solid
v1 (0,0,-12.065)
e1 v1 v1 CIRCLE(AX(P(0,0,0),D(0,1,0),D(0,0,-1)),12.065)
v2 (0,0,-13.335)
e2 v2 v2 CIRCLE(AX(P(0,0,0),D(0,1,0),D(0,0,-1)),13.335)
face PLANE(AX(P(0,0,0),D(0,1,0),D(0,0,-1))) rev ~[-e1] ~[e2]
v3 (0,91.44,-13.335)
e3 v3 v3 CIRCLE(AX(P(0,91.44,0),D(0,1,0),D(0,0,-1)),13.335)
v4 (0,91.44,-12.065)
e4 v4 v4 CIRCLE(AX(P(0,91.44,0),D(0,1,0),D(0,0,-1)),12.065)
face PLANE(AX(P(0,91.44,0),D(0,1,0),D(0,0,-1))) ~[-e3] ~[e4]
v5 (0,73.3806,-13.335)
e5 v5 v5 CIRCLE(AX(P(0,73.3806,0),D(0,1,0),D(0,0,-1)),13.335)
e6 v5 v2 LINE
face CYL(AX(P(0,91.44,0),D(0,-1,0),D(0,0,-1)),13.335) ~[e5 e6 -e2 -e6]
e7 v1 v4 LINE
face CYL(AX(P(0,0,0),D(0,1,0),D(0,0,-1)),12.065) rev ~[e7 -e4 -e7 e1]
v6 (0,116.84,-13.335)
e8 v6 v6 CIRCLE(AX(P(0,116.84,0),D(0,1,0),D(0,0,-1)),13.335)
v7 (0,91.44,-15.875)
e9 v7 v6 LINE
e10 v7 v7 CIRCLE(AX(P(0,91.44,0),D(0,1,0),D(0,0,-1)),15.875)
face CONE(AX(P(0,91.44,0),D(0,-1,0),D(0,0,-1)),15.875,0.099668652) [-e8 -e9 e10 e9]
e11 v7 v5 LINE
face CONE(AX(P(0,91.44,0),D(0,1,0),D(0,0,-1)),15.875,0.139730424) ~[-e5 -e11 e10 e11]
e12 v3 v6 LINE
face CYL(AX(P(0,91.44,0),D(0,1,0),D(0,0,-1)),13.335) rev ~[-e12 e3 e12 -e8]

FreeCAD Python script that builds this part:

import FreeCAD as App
import Part
import Sketcher

V = App.Vector
Q = App.Units.Quantity


def add_polygon(sketch, points):
    """Adds a closed chain of lines whose ends are joined by coincident constraints."""
    first, n = sketch.GeometryCount, len(points)
    for a, b in zip(points, points[1:] + points[:1]):
        sketch.addGeometry(Part.LineSegment(App.Vector(*a, 0), App.Vector(*b, 0)), False)
    for i in range(n):
        sketch.addConstraint(Sketcher.Constraint("Coincident", first + i, 2, first + (i + 1) % n, 1))

doc = App.newDocument("Part")
body = doc.addObject("PartDesign::Body", "Body")

sketch1 = doc.addObject("Sketcher::SketchObject", "Sketch")
body.addObject(sketch1)
sketch1.AttachmentSupport = (doc.YZ_Plane, [""])
sketch1.MapMode = "FlatFace"
add_polygon(sketch1, [(91.4, -12.1), (0, -12.1), (0, -13.3), (73.4, -13.3), (91.4, -15.9), (116.8, -13.3), (91.4, -13.3)])
sketch1.addConstraint(Sketcher.Constraint("Horizontal", 0))
sketch1.addConstraint(Sketcher.Constraint("Vertical", 1))
sketch1.addConstraint(Sketcher.Constraint("Horizontal", 2))
sketch1.addConstraint(Sketcher.Constraint("Horizontal", 5))
sketch1.addConstraint(Sketcher.Constraint("Vertical", 6))
sketch1.addConstraint(Sketcher.Constraint("PointOnObject", 0, 2, -2))
sketch1.addConstraint(Sketcher.Constraint("Horizontal", 2, 2, 4, 2))
sketch1.addConstraint(Sketcher.Constraint("Vertical", 3, 2, 5, 2))
sketch1.addConstraint(Sketcher.Constraint("DistanceX", 5, 2, 5, 1, Q("1 in")))
sketch1.addConstraint(Sketcher.Constraint("DistanceX", 0, 2, 0, 1, Q("3.6 in")))
sketch1.addConstraint(Sketcher.Constraint("DistanceY", 1, 2, 1, 1, Q("0.05 in")))
sketch1.addConstraint(Sketcher.Constraint("DistanceY", 3, 2, 2, 2, Q("0.1 in")))
sketch1.addConstraint(Sketcher.Constraint("DistanceY", 0, 2, -1, 1, Q("0.475 in")))
sketch1.addConstraint(Sketcher.Constraint("DistanceX", 2, 1, 2, 2, Q("2.889 in")))
revolution = doc.addObject("PartDesign::Revolution", "Revolution")
body.addObject(revolution)
revolution.Profile = sketch1
revolution.ReferenceAxis = (sketch1, ["H_Axis"])
revolution.Angle = 360

doc.recompute()
